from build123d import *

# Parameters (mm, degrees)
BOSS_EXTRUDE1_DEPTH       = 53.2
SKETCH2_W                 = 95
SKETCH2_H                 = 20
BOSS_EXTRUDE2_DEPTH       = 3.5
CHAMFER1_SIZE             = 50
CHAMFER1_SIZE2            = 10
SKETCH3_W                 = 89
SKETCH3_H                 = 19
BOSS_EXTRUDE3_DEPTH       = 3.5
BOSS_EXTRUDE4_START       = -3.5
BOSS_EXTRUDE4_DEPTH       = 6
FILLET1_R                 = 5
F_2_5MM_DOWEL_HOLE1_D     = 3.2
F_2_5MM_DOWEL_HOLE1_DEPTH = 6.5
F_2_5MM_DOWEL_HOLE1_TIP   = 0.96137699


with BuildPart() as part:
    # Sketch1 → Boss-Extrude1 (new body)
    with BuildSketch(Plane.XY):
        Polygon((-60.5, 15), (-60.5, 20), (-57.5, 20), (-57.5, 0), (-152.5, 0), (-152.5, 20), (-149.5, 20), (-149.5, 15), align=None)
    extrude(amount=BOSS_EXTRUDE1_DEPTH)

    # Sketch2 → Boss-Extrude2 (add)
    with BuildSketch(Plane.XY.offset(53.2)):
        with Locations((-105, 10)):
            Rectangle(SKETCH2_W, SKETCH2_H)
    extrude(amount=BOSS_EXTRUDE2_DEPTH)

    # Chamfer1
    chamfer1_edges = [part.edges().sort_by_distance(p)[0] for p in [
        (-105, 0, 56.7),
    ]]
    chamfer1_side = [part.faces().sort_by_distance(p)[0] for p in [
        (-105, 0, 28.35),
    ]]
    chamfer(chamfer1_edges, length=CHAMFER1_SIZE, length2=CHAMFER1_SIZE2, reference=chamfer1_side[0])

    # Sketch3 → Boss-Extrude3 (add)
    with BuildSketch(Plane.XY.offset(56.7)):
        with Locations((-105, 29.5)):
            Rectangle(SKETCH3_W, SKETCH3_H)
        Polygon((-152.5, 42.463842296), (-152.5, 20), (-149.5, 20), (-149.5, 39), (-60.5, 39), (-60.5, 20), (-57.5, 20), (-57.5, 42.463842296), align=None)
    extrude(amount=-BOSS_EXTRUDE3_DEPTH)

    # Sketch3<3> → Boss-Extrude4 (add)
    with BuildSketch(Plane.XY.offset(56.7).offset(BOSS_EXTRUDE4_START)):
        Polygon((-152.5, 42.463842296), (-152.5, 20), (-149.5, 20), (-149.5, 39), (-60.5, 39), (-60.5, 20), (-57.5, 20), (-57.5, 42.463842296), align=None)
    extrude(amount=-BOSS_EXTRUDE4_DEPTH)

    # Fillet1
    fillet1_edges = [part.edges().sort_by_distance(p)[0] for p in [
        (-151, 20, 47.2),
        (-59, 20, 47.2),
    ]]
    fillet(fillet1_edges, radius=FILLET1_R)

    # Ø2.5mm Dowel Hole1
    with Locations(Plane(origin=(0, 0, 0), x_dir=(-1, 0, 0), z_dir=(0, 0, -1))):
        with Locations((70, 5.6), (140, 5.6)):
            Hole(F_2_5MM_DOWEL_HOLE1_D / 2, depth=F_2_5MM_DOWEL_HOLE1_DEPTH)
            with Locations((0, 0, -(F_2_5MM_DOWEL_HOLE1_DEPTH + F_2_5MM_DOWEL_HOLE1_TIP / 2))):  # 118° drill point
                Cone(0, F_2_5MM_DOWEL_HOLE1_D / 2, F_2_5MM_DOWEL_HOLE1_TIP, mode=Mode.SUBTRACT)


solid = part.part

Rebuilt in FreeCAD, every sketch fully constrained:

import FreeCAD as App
import Part
import Sketcher
from FreeCAD import Vector
Q = App.Units.Quantity


def edges_at(feature, points):
    """Names of the edges that pass closest to the given points."""
    edges = feature.Shape.Edges
    near = lambda p: min(range(len(edges)), key=lambda i: edges[i].distToShape(Part.Vertex(*p))[0])
    return sorted({f"Edge{near(p) + 1}" for p in points})


def add_polygon(sketch, points):
    """Adds a closed chain of lines whose ends are joined by coincident constraints."""
    first, n = sketch.GeometryCount, len(points)
    for a, b in zip(points, points[1:] + points[:1]):
        sketch.addGeometry(Part.LineSegment(App.Vector(*a, 0), App.Vector(*b, 0)), False)
    for i in range(n):
        sketch.addConstraint(Sketcher.Constraint("Coincident", first + i, 2, first + (i + 1) % n, 1))

doc = App.newDocument("Part")
body = doc.addObject("PartDesign::Body", "Body")

# Sketch on XY plane
sketch1 = body.newObject("Sketcher::SketchObject", "Sketch")
sketch1.AttachmentSupport = (doc.getObject("XY_Plane"), [""])
sketch1.MapMode = "FlatFace"
add_polygon(sketch1, [(-60.5, 20), (-60.5, 15), (-149.5, 15), (-149.5, 20), (-152.5, 20), (-152.5, 0), (-57.5, 0), (-57.5, 20)])  # lines 0-7
sketch1.addConstraint([
    Sketcher.Constraint("Vertical", 0),
    Sketcher.Constraint("Horizontal", 1),
    Sketcher.Constraint("Vertical", 2),
    Sketcher.Constraint("Horizontal", 3),
    Sketcher.Constraint("Vertical", 4),
    Sketcher.Constraint("Horizontal", 5),
    Sketcher.Constraint("Vertical", 6),
    Sketcher.Constraint("Horizontal", 7),
    Sketcher.Constraint("PointOnObject", 4, 2, -1),
    Sketcher.Constraint("Horizontal", 3, 2, 6, 2),
    Sketcher.Constraint("Equal", 3, 7),
    Sketcher.Constraint("DistanceX", 1, 2, 1, 1, Q("89 mm")),
    Sketcher.Constraint("DistanceX", 3, 2, 3, 1, Q("3 mm")),
    Sketcher.Constraint("DistanceY", 0, 2, 0, 1, Q("5 mm")),
    Sketcher.Constraint("DistanceY", 4, 2, 4, 1, Q("20 mm")),
    Sketcher.Constraint("DistanceX", 0, 2, -1, 1, Q("60.5 mm")),
])
pad1 = body.newObject("PartDesign::Pad", "Pad")
pad1.Profile = sketch1
pad1.Length = 53.2

# Sketch on XY plane
sketch2 = body.newObject("Sketcher::SketchObject", "Sketch001")
sketch2.AttachmentSupport = (doc.getObject("XY_Plane"), [""])
sketch2.MapMode = "FlatFace"
sketch2.AttachmentOffset = App.Placement(Vector(0, 0, 53.2), App.Rotation())
add_polygon(sketch2, [(-152, 20), (-152, 0), (-58, 0), (-58, 20)])  # lines 0-3
sketch2.addConstraint([
    Sketcher.Constraint("Vertical", 0),
    Sketcher.Constraint("Horizontal", 1),
    Sketcher.Constraint("Vertical", 2),
    Sketcher.Constraint("Horizontal", 3),
    Sketcher.Constraint("PointOnObject", 0, 2, -1),
    Sketcher.Constraint("DistanceX", 1, 1, 1, 2, Q("95 mm")),
    Sketcher.Constraint("DistanceY", 0, 2, 0, 1, Q("20 mm")),
    Sketcher.Constraint("DistanceX", 0, 2, -1, 1, Q("152.5 mm")),
])
pad2 = body.newObject("PartDesign::Pad", "Pad001")
pad2.Profile = sketch2
pad2.Length = 3.5
doc.recompute()

chamfer = body.newObject("PartDesign::Chamfer", "Chamfer")
chamfer.Base = (pad2, edges_at(pad2, [(-105, 0, 56.7)]))
chamfer.ChamferType = "Two distances"
chamfer.Size = 50
chamfer.Size2 = 10
chamfer.FlipDirection = True

# Sketch on XY plane
sketch3 = body.newObject("Sketcher::SketchObject", "Sketch002")
sketch3.AttachmentSupport = (doc.getObject("XY_Plane"), [""])
sketch3.MapMode = "FlatFace"
sketch3.AttachmentOffset = App.Placement(Vector(0, 0, 56.7), App.Rotation())
add_polygon(sketch3, [(-58, 20), (-58, 42), (-152, 42), (-152, 20)])  # lines 0-3
sketch3.addConstraint([
    Sketcher.Constraint("Vertical", 0),
    Sketcher.Constraint("Horizontal", 1),
    Sketcher.Constraint("Vertical", 2),
    Sketcher.Constraint("Horizontal", 3),
    Sketcher.Constraint("DistanceX", 1, 2, 1, 1, Q("95 mm")),
    Sketcher.Constraint("DistanceY", -1, 1, 2, 2, Q("20 mm")),
    Sketcher.Constraint("DistanceX", 0, 2, -1, 1, Q("57.5 mm")),
    Sketcher.Constraint("DistanceY", 0, 1, 0, 2, Q("22.463842 mm")),
])
pad3 = body.newObject("PartDesign::Pad", "Pad002")
pad3.Profile = sketch3
pad3.Length = 3.5
pad3.Reversed = True

# Sketch on XY plane
sketch4 = body.newObject("Sketcher::SketchObject", "Sketch003")
sketch4.AttachmentSupport = (doc.getObject("XY_Plane"), [""])
sketch4.MapMode = "FlatFace"
sketch4.AttachmentOffset = App.Placement(Vector(0, 0, 53.2), App.Rotation())
add_polygon(sketch4, [(-152.5, 42.5), (-152.5, 20), (-149.5, 20), (-149.5, 39), (-60.5, 39), (-60.5, 20), (-57.5, 20), (-57.5, 42.5)])  # lines 0-7
sketch4.addConstraint([
    Sketcher.Constraint("Vertical", 0),
    Sketcher.Constraint("Horizontal", 1),
    Sketcher.Constraint("Vertical", 2),
    Sketcher.Constraint("Horizontal", 3),
    Sketcher.Constraint("Vertical", 4),
    Sketcher.Constraint("Horizontal", 5),
    Sketcher.Constraint("Vertical", 6),
    Sketcher.Constraint("Horizontal", 7),
    Sketcher.Constraint("Horizontal", 1, 2, 4, 2),
    Sketcher.Constraint("Equal", 1, 5),
    Sketcher.Constraint("DistanceX", 1, 1, 1, 2, Q("3 mm")),
    Sketcher.Constraint("DistanceX", 3, 1, 3, 2, Q("89 mm")),
    Sketcher.Constraint("DistanceY", 2, 1, 2, 2, Q("19 mm")),
    Sketcher.Constraint("DistanceY", -1, 1, 0, 2, Q("20 mm")),
    Sketcher.Constraint("DistanceX", 0, 2, -1, 1, Q("152.5 mm")),
    Sketcher.Constraint("DistanceY", 0, 2, 0, 1, Q("22.463842 mm")),
])
pad4 = body.newObject("PartDesign::Pad", "Pad003")
pad4.Profile = sketch4
pad4.Length = 6
pad4.Reversed = True
doc.recompute()

fillet = body.newObject("PartDesign::Fillet", "Fillet")
fillet.Base = (pad4, edges_at(pad4, [(-151, 20, 47.2), (-59, 20, 47.2)]))
fillet.Radius = 5

# Sketch on XY plane
sketch5 = body.newObject("Sketcher::SketchObject", "Sketch004")
sketch5.AttachmentSupport = (doc.getObject("XY_Plane"), [""])
sketch5.MapMode = "FlatFace"
sketch5.addGeometry([
    Part.Circle(Vector(-70, 5.6, 0), Vector(0, 0, 1), 1.6),
    Part.Circle(Vector(-140, 5.6, 0), Vector(0, 0, 1), 1.6),
], False)
sketch5.addConstraint([
    Sketcher.Constraint("Equal", 0, 1),
    Sketcher.Constraint("Horizontal", 0, 3, 1, 3),
    Sketcher.Constraint("Diameter", 0, Q("3.2 mm")),
    Sketcher.Constraint("DistanceX", 0, 3, -1, 1, Q("70 mm")),
    Sketcher.Constraint("DistanceX", 1, 3, -1, 1, Q("140 mm")),
    Sketcher.Constraint("DistanceY", -1, 1, 0, 3, Q("5.6 mm")),
])
doc.recompute()
hole = body.newObject("PartDesign::Hole", "Hole")
hole.Profile = sketch5
hole.ThreadType = "None"
hole.Diameter = 3.2
hole.DepthType = "Dimension"
hole.Depth = 6.5
hole.DrillPoint = "Angled"
hole.DrillPointAngle = 118
hole.Reversed = True

doc.recompute()
